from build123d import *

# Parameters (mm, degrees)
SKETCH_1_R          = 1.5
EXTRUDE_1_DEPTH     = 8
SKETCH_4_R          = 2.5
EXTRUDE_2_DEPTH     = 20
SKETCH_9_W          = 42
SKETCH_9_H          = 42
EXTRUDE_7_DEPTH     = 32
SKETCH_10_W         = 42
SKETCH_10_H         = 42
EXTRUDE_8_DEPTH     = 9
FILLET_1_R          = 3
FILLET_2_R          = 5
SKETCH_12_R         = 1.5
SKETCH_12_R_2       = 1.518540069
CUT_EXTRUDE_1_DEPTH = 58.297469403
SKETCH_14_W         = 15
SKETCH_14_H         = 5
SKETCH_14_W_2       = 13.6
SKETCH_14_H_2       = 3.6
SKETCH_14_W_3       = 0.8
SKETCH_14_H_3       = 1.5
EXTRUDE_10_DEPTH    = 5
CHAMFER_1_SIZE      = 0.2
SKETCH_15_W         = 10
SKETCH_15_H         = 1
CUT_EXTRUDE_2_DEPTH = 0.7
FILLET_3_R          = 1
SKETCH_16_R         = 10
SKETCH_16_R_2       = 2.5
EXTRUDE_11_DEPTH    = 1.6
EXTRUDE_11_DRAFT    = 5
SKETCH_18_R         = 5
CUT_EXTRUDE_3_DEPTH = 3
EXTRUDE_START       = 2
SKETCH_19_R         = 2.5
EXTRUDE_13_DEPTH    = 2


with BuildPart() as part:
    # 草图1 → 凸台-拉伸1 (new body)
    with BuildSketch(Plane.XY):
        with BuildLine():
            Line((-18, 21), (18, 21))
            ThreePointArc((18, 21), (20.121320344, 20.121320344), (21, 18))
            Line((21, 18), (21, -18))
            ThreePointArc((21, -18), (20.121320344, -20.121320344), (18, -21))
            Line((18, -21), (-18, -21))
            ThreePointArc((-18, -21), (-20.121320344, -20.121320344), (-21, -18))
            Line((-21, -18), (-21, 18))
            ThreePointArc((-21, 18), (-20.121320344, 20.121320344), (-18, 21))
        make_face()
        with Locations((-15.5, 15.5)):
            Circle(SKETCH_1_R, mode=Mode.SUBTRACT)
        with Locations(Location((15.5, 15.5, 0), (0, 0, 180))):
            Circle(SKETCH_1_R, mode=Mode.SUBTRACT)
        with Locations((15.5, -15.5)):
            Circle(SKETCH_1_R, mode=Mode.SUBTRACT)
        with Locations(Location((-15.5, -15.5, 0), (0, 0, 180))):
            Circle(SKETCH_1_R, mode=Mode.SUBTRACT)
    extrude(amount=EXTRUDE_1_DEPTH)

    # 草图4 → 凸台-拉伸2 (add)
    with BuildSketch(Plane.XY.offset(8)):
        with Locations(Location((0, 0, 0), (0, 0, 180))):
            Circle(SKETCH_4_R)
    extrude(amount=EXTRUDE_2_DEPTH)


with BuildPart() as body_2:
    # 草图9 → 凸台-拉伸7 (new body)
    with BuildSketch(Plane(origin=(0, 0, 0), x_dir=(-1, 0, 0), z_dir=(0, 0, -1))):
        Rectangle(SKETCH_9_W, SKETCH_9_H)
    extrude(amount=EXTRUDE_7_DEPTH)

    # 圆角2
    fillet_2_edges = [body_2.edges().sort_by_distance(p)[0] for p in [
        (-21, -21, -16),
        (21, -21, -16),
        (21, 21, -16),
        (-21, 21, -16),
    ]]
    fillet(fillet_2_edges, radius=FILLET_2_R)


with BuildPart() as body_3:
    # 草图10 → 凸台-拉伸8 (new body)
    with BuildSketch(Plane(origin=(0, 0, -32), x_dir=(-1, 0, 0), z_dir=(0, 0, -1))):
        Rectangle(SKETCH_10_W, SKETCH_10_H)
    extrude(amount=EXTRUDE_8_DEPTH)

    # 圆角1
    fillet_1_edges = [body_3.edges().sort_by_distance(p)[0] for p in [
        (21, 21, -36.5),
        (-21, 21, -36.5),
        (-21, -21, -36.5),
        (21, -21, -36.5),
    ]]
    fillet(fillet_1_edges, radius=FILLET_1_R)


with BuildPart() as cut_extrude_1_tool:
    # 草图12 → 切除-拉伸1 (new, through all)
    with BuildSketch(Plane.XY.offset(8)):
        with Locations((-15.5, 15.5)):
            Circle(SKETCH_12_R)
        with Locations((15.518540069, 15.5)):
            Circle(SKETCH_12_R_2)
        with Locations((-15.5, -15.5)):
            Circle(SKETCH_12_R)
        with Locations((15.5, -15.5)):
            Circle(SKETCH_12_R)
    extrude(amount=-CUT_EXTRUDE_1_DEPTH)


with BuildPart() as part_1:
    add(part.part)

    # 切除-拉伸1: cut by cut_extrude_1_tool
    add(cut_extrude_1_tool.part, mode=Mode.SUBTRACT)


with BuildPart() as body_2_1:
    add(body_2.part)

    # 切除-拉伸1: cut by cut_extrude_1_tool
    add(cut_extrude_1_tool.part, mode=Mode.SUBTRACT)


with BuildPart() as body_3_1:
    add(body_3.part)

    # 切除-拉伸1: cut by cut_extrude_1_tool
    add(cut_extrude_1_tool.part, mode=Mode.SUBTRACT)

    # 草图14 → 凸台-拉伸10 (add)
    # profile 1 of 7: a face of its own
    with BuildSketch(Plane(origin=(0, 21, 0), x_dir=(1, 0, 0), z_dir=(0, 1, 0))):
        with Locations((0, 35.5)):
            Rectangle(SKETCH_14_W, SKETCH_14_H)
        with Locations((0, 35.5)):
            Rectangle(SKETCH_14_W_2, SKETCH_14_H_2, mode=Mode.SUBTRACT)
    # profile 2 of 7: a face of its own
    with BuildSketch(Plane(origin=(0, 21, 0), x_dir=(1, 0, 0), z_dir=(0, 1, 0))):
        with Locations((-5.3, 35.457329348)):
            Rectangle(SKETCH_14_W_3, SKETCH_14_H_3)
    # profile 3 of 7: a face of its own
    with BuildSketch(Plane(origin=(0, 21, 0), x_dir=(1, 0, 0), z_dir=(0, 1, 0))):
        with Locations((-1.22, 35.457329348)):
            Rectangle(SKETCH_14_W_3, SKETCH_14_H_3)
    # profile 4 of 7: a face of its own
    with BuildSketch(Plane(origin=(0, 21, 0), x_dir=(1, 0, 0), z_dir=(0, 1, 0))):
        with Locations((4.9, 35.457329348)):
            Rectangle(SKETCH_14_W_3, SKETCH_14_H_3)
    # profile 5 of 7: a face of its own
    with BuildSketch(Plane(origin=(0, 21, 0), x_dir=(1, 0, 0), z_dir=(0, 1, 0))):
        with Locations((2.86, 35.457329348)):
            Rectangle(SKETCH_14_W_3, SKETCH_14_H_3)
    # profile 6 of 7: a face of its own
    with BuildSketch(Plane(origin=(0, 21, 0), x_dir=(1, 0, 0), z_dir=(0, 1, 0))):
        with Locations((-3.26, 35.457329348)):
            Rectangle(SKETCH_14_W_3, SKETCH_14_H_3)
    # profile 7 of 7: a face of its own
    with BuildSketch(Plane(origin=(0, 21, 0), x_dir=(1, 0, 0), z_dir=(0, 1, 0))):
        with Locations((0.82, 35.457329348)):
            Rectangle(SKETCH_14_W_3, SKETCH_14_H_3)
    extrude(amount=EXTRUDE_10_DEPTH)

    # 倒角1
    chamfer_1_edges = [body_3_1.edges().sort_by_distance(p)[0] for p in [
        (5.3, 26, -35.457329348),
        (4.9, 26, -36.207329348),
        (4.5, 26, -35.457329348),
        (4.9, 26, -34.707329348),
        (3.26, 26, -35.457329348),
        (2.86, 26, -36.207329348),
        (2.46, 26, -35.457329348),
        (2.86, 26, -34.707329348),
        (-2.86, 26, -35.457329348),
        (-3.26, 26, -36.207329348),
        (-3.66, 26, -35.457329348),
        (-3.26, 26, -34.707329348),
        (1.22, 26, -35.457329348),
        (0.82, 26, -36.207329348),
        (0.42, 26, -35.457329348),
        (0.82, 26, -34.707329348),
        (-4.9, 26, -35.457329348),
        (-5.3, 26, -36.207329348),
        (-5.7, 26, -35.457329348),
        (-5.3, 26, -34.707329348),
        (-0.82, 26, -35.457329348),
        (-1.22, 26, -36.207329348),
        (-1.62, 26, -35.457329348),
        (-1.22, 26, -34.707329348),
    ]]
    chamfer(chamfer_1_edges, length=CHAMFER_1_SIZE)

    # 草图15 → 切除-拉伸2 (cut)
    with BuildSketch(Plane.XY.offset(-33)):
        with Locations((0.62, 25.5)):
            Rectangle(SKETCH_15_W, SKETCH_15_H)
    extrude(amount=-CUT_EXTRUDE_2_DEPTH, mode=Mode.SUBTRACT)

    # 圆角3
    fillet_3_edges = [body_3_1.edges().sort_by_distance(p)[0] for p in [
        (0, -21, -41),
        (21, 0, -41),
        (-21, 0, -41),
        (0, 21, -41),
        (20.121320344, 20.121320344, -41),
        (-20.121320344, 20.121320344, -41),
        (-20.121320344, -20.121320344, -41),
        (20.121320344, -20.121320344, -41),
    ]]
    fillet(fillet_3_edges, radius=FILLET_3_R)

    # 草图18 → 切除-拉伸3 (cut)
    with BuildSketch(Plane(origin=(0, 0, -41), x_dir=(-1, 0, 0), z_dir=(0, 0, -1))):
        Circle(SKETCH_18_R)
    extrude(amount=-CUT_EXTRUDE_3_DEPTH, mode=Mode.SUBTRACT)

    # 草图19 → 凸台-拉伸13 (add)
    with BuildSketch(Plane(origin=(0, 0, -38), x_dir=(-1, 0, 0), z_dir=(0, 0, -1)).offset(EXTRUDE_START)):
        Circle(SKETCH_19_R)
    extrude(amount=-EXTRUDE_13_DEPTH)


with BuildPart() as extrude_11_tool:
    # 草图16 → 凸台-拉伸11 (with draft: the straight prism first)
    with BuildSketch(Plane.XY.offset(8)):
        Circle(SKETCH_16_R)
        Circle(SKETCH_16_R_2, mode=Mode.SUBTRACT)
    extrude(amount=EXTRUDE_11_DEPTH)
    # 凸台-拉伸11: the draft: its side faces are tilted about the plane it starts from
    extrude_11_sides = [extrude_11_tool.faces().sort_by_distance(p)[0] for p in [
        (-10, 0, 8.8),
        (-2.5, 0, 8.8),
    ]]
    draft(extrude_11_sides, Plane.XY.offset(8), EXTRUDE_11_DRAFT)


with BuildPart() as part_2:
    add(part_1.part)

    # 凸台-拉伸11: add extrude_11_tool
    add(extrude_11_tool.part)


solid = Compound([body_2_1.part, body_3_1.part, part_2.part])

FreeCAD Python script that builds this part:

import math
import FreeCAD as App
import Part
import Sketcher

V = App.Vector
Q = App.Units.Quantity


def edges_at(feature, points):
    """Names of the edges that pass closest to the given points."""
    edges = feature.Shape.Edges
    near = lambda p: min(range(len(edges)), key=lambda i: edges[i].distToShape(Part.Vertex(*p))[0])
    return sorted({f"Edge{near(p) + 1}" for p in points})


def faces_at(feature, points):
    """Names of the faces that lie closest to the given points."""
    faces = feature.Shape.Faces
    near = lambda p: min(range(len(faces)), key=lambda i: faces[i].distToShape(Part.Vertex(*p))[0])
    return sorted({f"Face{near(p) + 1}" for p in points})


def add_polygon(sketch, points):
    """Adds a closed chain of lines whose ends are joined by coincident constraints."""
    first, n = sketch.GeometryCount, len(points)
    for a, b in zip(points, points[1:] + points[:1]):
        sketch.addGeometry(Part.LineSegment(App.Vector(*a, 0), App.Vector(*b, 0)), False)
    for i in range(n):
        sketch.addConstraint(Sketcher.Constraint("Coincident", first + i, 2, first + (i + 1) % n, 1))

doc = App.newDocument("Part")
body = doc.addObject("PartDesign::Body", "Body")

# Sketch on XY plane
sketch1 = body.newObject("Sketcher::SketchObject", "Sketch")
sketch1.AttachmentSupport = (doc.getObject("XY_Plane"), [""])
sketch1.MapMode = "FlatFace"
sketch1.addGeometry([
    Part.LineSegment(V(18, 21, 0), V(-18, 21, 0)),  # 0
    Part.ArcOfCircle(Part.Circle(V(-18, 18, 0), V(0, 0, 1), 3), math.radians(90), math.radians(180)),  # 1
    Part.LineSegment(V(-21, 18, 0), V(-21, -18, 0)),  # 2
    Part.ArcOfCircle(Part.Circle(V(-18, -18, 0), V(0, 0, 1), 3), math.radians(180), math.radians(270)),  # 3
    Part.LineSegment(V(-18, -21, 0), V(18, -21, 0)),  # 4
    Part.ArcOfCircle(Part.Circle(V(18, -18, 0), V(0, 0, 1), 3), math.radians(-90), math.radians(0)),  # 5
    Part.LineSegment(V(21, -18, 0), V(21, 18, 0)),  # 6
    Part.ArcOfCircle(Part.Circle(V(18, 18, 0), V(0, 0, 1), 3), math.radians(0), math.radians(90)),  # 7
    Part.Circle(V(15.5, -15.5, 0), V(0, 0, 1), 1.5),  # 8
    Part.Circle(V(-15.5, -15.5, 0), V(0, 0, 1), 1.5),  # 9
    Part.Circle(V(15.5, 15.5, 0), V(0, 0, 1), 1.5),  # 10
    Part.Circle(V(-15.5, 15.5, 0), V(0, 0, 1), 1.5),  # 11
], False)
sketch1.addConstraint([
    Sketcher.Constraint("Tangent", 0, 2, 1, 1),
    Sketcher.Constraint("Tangent", 1, 2, 2, 1),
    Sketcher.Constraint("Tangent", 2, 2, 3, 1),
    Sketcher.Constraint("Tangent", 3, 2, 4, 1),
    Sketcher.Constraint("Tangent", 4, 2, 5, 1),
    Sketcher.Constraint("Tangent", 5, 2, 6, 1),
    Sketcher.Constraint("Tangent", 6, 2, 7, 1),
    Sketcher.Constraint("Tangent", 7, 2, 0, 1),
    Sketcher.Constraint("Horizontal", 0),
    Sketcher.Constraint("Vertical", 2),
    Sketcher.Constraint("Horizontal", 4),
    Sketcher.Constraint("Vertical", 6),
    Sketcher.Constraint("Equal", 1, 3),
    Sketcher.Constraint("Equal", 3, 5),
    Sketcher.Constraint("Equal", 5, 7),
    Sketcher.Constraint("Equal", 8, 9),
    Sketcher.Constraint("Equal", 9, 10),
    Sketcher.Constraint("Equal", 10, 11),
    Sketcher.Constraint("Symmetric", 1, 3, 5, 3, -1, 1),
    Sketcher.Constraint("Symmetric", 9, 3, 10, 3, -1, 1),
    Sketcher.Constraint("Symmetric", 8, 3, 11, 3, -1, 1),
    Sketcher.Constraint("Symmetric", 8, 3, 9, 3, -2),
    Sketcher.Constraint("Equal", 4, 2),
    Sketcher.Constraint("Diameter", 8, Q("3 mm")),
    Sketcher.Constraint("Radius", 1, Q("3 mm")),
    Sketcher.Constraint("DistanceX", 0, 2, 0, 1, Q("36 mm")),
    Sketcher.Constraint("DistanceX", 9, 3, 8, 3, Q("31 mm")),
    Sketcher.Constraint("DistanceY", 8, 3, 10, 3, Q("31 mm")),
])
pad1 = body.newObject("PartDesign::Pad", "Pad")
pad1.Profile = sketch1
pad1.Length = 8

# Sketch on XY plane
sketch2 = body.newObject("Sketcher::SketchObject", "Sketch001")
sketch2.AttachmentSupport = (doc.getObject("XY_Plane"), [""])
sketch2.MapMode = "FlatFace"
sketch2.AttachmentOffset = App.Placement(V(0, 0, 8), App.Rotation())
sketch2.addGeometry(Part.Circle(V(0, 0, 0), V(0, 0, 1), 2.5), False)
sketch2.addConstraint([
    Sketcher.Constraint("Coincident", 0, 3, -1, 1),
    Sketcher.Constraint("Diameter", 0, Q("5 mm")),
])
pad2 = body.newObject("PartDesign::Pad", "Pad001")
pad2.Profile = sketch2
pad2.Length = 20
body2 = doc.addObject("PartDesign::Body", "Body001")

# Sketch on XY plane
sketch3 = body2.newObject("Sketcher::SketchObject", "Sketch002")
sketch3.AttachmentSupport = (doc.getObject("XY_Plane001"), [""])
sketch3.MapMode = "FlatFace"
add_polygon(sketch3, [(21, 21), (21, -21), (-21, -21), (-21, 21)])  # lines 0-3
sketch3.addConstraint([
    Sketcher.Constraint("Vertical", 0),
    Sketcher.Constraint("Horizontal", 1),
    Sketcher.Constraint("Vertical", 2),
    Sketcher.Constraint("Horizontal", 3),
    Sketcher.Constraint("Symmetric", 0, 2, 2, 2, -1, 1),
    Sketcher.Constraint("Equal", 3, 0),
    Sketcher.Constraint("DistanceX", 1, 2, 1, 1, Q("42 mm")),
])
pad3 = body2.newObject("PartDesign::Pad", "Pad002")
pad3.Profile = sketch3
pad3.Length = 32
pad3.Reversed = True
doc.recompute()

fillet = body2.newObject("PartDesign::Fillet", "Fillet")
fillet.Base = (pad3, edges_at(pad3, [
    (-21, -21, -16),
    (21, -21, -16),
    (21, 21, -16),
    (-21, 21, -16),
]))
fillet.Radius = 5
body3 = doc.addObject("PartDesign::Body", "Body002")

# Sketch on XY plane
sketch4 = body3.newObject("Sketcher::SketchObject", "Sketch003")
sketch4.AttachmentSupport = (doc.getObject("XY_Plane002"), [""])
sketch4.MapMode = "FlatFace"
sketch4.AttachmentOffset = App.Placement(V(0, 0, -32), App.Rotation())
add_polygon(sketch4, [(21, 21), (21, -21), (-21, -21), (-21, 21)])  # lines 0-3
sketch4.addConstraint([
    Sketcher.Constraint("Vertical", 0),
    Sketcher.Constraint("Horizontal", 1),
    Sketcher.Constraint("Vertical", 2),
    Sketcher.Constraint("Horizontal", 3),
    Sketcher.Constraint("Symmetric", 0, 2, 2, 2, -1, 1),
    Sketcher.Constraint("Equal", 3, 0),
    Sketcher.Constraint("DistanceX", 1, 2, 1, 1, Q("42 mm")),
])
pad4 = body3.newObject("PartDesign::Pad", "Pad003")
pad4.Profile = sketch4
pad4.Length = 9
pad4.Reversed = True
doc.recompute()

fillet2 = body3.newObject("PartDesign::Fillet", "Fillet001")
fillet2.Base = (pad4, edges_at(pad4, [
    (21, 21, -36.5),
    (-21, 21, -36.5),
    (-21, -21, -36.5),
    (21, -21, -36.5),
]))
fillet2.Radius = 3
body4 = doc.addObject("PartDesign::Body", "Body003")
body4.AllowCompound = True

# Sketch on XY plane
sketch5 = body4.newObject("Sketcher::SketchObject", "Sketch004")
sketch5.AttachmentSupport = (doc.getObject("XY_Plane003"), [""])
sketch5.MapMode = "FlatFace"
sketch5.AttachmentOffset = App.Placement(V(0, 0, 8), App.Rotation())
sketch5.addGeometry([
    Part.Circle(V(-15.5, 15.5, 0), V(0, 0, 1), 1.5),
    Part.Circle(V(15.5, 15.5, 0), V(0, 0, 1), 1.5),
    Part.Circle(V(-15.5, -15.5, 0), V(0, 0, 1), 1.5),
    Part.Circle(V(15.5, -15.5, 0), V(0, 0, 1), 1.5),
], False)
sketch5.addConstraint([
    Sketcher.Constraint("Equal", 0, 2),
    Sketcher.Constraint("Equal", 2, 3),
    Sketcher.Constraint("Symmetric", 0, 3, 3, 3, -1, 1),
    Sketcher.Constraint("Symmetric", 2, 3, 3, 3, -2),
    Sketcher.Constraint("Horizontal", 0, 3, 1, 3),
    Sketcher.Constraint("Diameter", 0, Q("3 mm")),
    Sketcher.Constraint("DistanceY", 2, 3, 0, 3, Q("31 mm")),
    Sketcher.Constraint("DistanceX", 2, 3, 3, 3, Q("31 mm")),
    Sketcher.Constraint("Diameter", 1, Q("3.03708 mm")),
    Sketcher.Constraint("DistanceX", -1, 1, 1, 3, Q("15.51854 mm")),
])
pad5 = body4.newObject("PartDesign::Pad", "Pad004")
pad5.Profile = sketch5
pad5.Length = 58.297469
pad5.Reversed = True
doc.recompute()

body5 = doc.addObject("PartDesign::Body", "Body004")
body5.BaseFeature = body4
boolean = body.newObject("PartDesign::Boolean", "Boolean")
boolean.Type = "Cut"
boolean.addObjects([body5])
doc.recompute()

body6 = doc.addObject("PartDesign::Body", "Body005")
body6.BaseFeature = body4
boolean2 = body2.newObject("PartDesign::Boolean", "Boolean001")
boolean2.Type = "Cut"
boolean2.addObjects([body6])
doc.recompute()

boolean3 = body3.newObject("PartDesign::Boolean", "Boolean002")
boolean3.Type = "Cut"
boolean3.addObjects([body4])

# Sketch on XZ plane
sketch6 = body3.newObject("Sketcher::SketchObject", "Sketch005")
sketch6.AttachmentSupport = (doc.getObject("XZ_Plane002"), [""])
sketch6.MapMode = "FlatFace"
sketch6.AttachmentOffset = App.Placement(V(0, 0, -21), App.Rotation())
add_polygon(sketch6, [(-7.5, -38), (-7.5, -33), (7.5, -33), (7.5, -38)])  # lines 0-3
add_polygon(sketch6, [(6.8, -33.7), (-6.8, -33.7), (-6.8, -37.3), (6.8, -37.3)])  # lines 4-7
add_polygon(sketch6, [(-5.7, -36.2), (-5.7, -34.7), (-4.9, -34.7), (-4.9, -36.2)])  # lines 8-11
add_polygon(sketch6, [(-1.6, -36.2), (-1.6, -34.7), (-0.8, -34.7), (-0.8, -36.2)])  # lines 12-15
add_polygon(sketch6, [(4.5, -36.2), (4.5, -34.7), (5.3, -34.7), (5.3, -36.2)])  # lines 16-19
add_polygon(sketch6, [(2.5, -36.2), (2.5, -34.7), (3.3, -34.7), (3.3, -36.2)])  # lines 20-23
add_polygon(sketch6, [(-3.7, -36.2), (-3.7, -34.7), (-2.9, -34.7), (-2.9, -36.2)])  # lines 24-27
add_polygon(sketch6, [(0.4, -36.2), (0.4, -34.7), (1.2, -34.7), (1.2, -36.2)])  # lines 28-31
sketch6.addConstraint([
    Sketcher.Constraint("Vertical", 0),
    Sketcher.Constraint("Horizontal", 1),
    Sketcher.Constraint("Vertical", 2),
    Sketcher.Constraint("Horizontal", 3),
    Sketcher.Constraint("Horizontal", 4),
    Sketcher.Constraint("Vertical", 5),
    Sketcher.Constraint("Horizontal", 6),
    Sketcher.Constraint("Vertical", 7),
    Sketcher.Constraint("Vertical", 8),
    Sketcher.Constraint("Horizontal", 9),
    Sketcher.Constraint("Vertical", 10),
    Sketcher.Constraint("Horizontal", 11),
    Sketcher.Constraint("Vertical", 12),
    Sketcher.Constraint("Horizontal", 13),
    Sketcher.Constraint("Vertical", 14),
    Sketcher.Constraint("Horizontal", 15),
    Sketcher.Constraint("Vertical", 16),
    Sketcher.Constraint("Horizontal", 17),
    Sketcher.Constraint("Vertical", 18),
    Sketcher.Constraint("Horizontal", 19),
    Sketcher.Constraint("Vertical", 20),
    Sketcher.Constraint("Horizontal", 21),
    Sketcher.Constraint("Vertical", 22),
    Sketcher.Constraint("Horizontal", 23),
    Sketcher.Constraint("Vertical", 24),
    Sketcher.Constraint("Horizontal", 25),
    Sketcher.Constraint("Vertical", 26),
    Sketcher.Constraint("Horizontal", 27),
    Sketcher.Constraint("Vertical", 28),
    Sketcher.Constraint("Horizontal", 29),
    Sketcher.Constraint("Vertical", 30),
    Sketcher.Constraint("Horizontal", 31),
    Sketcher.Constraint("Horizontal", 9, 2, 12, 2),
    Sketcher.Constraint("Horizontal", 11, 2, 14, 2),
    Sketcher.Constraint("Horizontal", 13, 2, 16, 2),
    Sketcher.Constraint("Horizontal", 15, 2, 18, 2),
    Sketcher.Constraint("Horizontal", 17, 2, 20, 2),
    Sketcher.Constraint("Horizontal", 19, 2, 22, 2),
    Sketcher.Constraint("Horizontal", 21, 2, 24, 2),
    Sketcher.Constraint("Horizontal", 23, 2, 26, 2),
    Sketcher.Constraint("Horizontal", 25, 2, 28, 2),
    Sketcher.Constraint("Horizontal", 27, 2, 30, 2),
    Sketcher.Constraint("Equal", 11, 13),
    Sketcher.Constraint("Equal", 15, 17),
    Sketcher.Constraint("Equal", 19, 21),
    Sketcher.Constraint("Equal", 23, 25),
    Sketcher.Constraint("Equal", 27, 29),
    Sketcher.Constraint("DistanceX", 1, 1, 1, 2, Q("15 mm")),
    Sketcher.Constraint("DistanceY", 0, 1, 0, 2, Q("5 mm")),
    Sketcher.Constraint("DistanceX", 4, 2, 4, 1, Q("13.6 mm")),
    Sketcher.Constraint("DistanceX", 9, 1, 9, 2, Q("0.8 mm")),
    Sketcher.Constraint("DistanceY", 5, 2, 5, 1, Q("3.6 mm")),
    Sketcher.Constraint("DistanceY", 8, 1, 8, 2, Q("1.5 mm")),
    Sketcher.Constraint("DistanceY", 0, 2, -1, 1, Q("33 mm")),
    Sketcher.Constraint("DistanceX", 16, 2, 1, 2, Q("3 mm")),
    Sketcher.Constraint("DistanceX", 0, 2, -1, 1, Q("7.5 mm")),
    Sketcher.Constraint("DistanceX", 4, 2, -1, 1, Q("6.8 mm")),
    Sketcher.Constraint("DistanceY", 4, 2, -1, 1, Q("33.7 mm")),
    Sketcher.Constraint("DistanceX", 8, 2, -1, 1, Q("5.7 mm")),
    Sketcher.Constraint("DistanceX", 12, 2, -1, 1, Q("1.62 mm")),
    Sketcher.Constraint("DistanceX", -1, 1, 20, 2, Q("2.46 mm")),
    Sketcher.Constraint("DistanceX", 24, 2, -1, 1, Q("3.66 mm")),
    Sketcher.Constraint("DistanceX", -1, 1, 28, 2, Q("0.42 mm")),
    Sketcher.Constraint("DistanceY", 8, 2, -1, 1, Q("34.707329 mm")),
])
pad6 = body3.newObject("PartDesign::Pad", "Pad005")
pad6.Profile = sketch6
pad6.Length = 5
pad6.Reversed = True
doc.recompute()

chamfer = body3.newObject("PartDesign::Chamfer", "Chamfer")
chamfer.Base = (pad6, edges_at(pad6, [
    (5.3, 26, -35.457),
    (4.9, 26, -36.207),
    (4.5, 26, -35.457),
    (4.9, 26, -34.707),
    (3.26, 26, -35.457),
    (2.86, 26, -36.207),
    (2.46, 26, -35.457),
    (2.86, 26, -34.707),
    (-2.86, 26, -35.457),
    (-3.26, 26, -36.207),
    (-3.66, 26, -35.457),
    (-3.26, 26, -34.707),
    (1.22, 26, -35.457),
    (0.82, 26, -36.207),
    (0.42, 26, -35.457),
    (0.82, 26, -34.707),
    (-4.9, 26, -35.457),
    (-5.3, 26, -36.207),
    (-5.7, 26, -35.457),
    (-5.3, 26, -34.707),
    (-0.82, 26, -35.457),
    (-1.22, 26, -36.207),
    (-1.62, 26, -35.457),
    (-1.22, 26, -34.707),
]))
chamfer.Size = 0.2

# Sketch on XY plane
sketch7 = body3.newObject("Sketcher::SketchObject", "Sketch006")
sketch7.AttachmentSupport = (doc.getObject("XY_Plane002"), [""])
sketch7.MapMode = "FlatFace"
sketch7.AttachmentOffset = App.Placement(V(0, 0, -33), App.Rotation())
add_polygon(sketch7, [(-4.4, 26), (-4.4, 25), (5.6, 25), (5.6, 26)])  # lines 0-3
sketch7.addConstraint([
    Sketcher.Constraint("Vertical", 0),
    Sketcher.Constraint("Horizontal", 1),
    Sketcher.Constraint("Vertical", 2),
    Sketcher.Constraint("Horizontal", 3),
    Sketcher.Constraint("DistanceX", 1, 1, 1, 2, Q("10 mm")),
    Sketcher.Constraint("DistanceY", 0, 2, 0, 1, Q("1 mm")),
    Sketcher.Constraint("DistanceY", -1, 1, 0, 2, Q("25 mm")),
    Sketcher.Constraint("DistanceX", 0, 2, -1, 1, Q("4.38 mm")),
])
pocket1 = body3.newObject("PartDesign::Pocket", "Pocket")
pocket1.Profile = sketch7
pocket1.Length = 0.7
doc.recompute()

fillet3 = body3.newObject("PartDesign::Fillet", "Fillet002")
fillet3.Base = (pocket1, edges_at(pocket1, [
    (0, -21, -41),
    (21, 0, -41),
    (-21, 0, -41),
    (0, 21, -41),
    (20.121, 20.121, -41),
    (-20.121, 20.121, -41),
    (-20.121, -20.121, -41),
    (20.121, -20.121, -41),
]))
fillet3.Radius = 1

# Sketch on XY plane
sketch8 = body3.newObject("Sketcher::SketchObject", "Sketch007")
sketch8.AttachmentSupport = (doc.getObject("XY_Plane002"), [""])
sketch8.MapMode = "FlatFace"
sketch8.AttachmentOffset = App.Placement(V(0, 0, -41), App.Rotation())
sketch8.addGeometry(Part.Circle(V(0, 0, 0), V(0, 0, 1), 5), False)
sketch8.addConstraint([
    Sketcher.Constraint("Coincident", 0, 3, -1, 1),
    Sketcher.Constraint("Diameter", 0, Q("10 mm")),
])
pocket2 = body3.newObject("PartDesign::Pocket", "Pocket001")
pocket2.Profile = sketch8
pocket2.Length = 3
pocket2.Reversed = True

# Sketch on XY plane
sketch9 = body3.newObject("Sketcher::SketchObject", "Sketch008")
sketch9.AttachmentSupport = (doc.getObject("XY_Plane002"), [""])
sketch9.MapMode = "FlatFace"
sketch9.AttachmentOffset = App.Placement(V(0, 0, -40), App.Rotation())
sketch9.addGeometry(Part.Circle(V(0, 0, 0), V(0, 0, 1), 2.5), False)
sketch9.addConstraint([
    Sketcher.Constraint("Coincident", 0, 3, -1, 1),
    Sketcher.Constraint("Diameter", 0, Q("5 mm")),
])
pad7 = body3.newObject("PartDesign::Pad", "Pad006")
pad7.Profile = sketch9
pad7.Length = 2
body7 = doc.addObject("PartDesign::Body", "Body006")

# Sketch on XY plane
sketch10 = body7.newObject("Sketcher::SketchObject", "Sketch009")
sketch10.AttachmentSupport = (doc.getObject("XY_Plane006"), [""])
sketch10.MapMode = "FlatFace"
sketch10.AttachmentOffset = App.Placement(V(0, 0, 8), App.Rotation())
sketch10.addGeometry([
    Part.Circle(V(0, 0, 0), V(0, 0, 1), 10),
    Part.Circle(V(0, 0, 0), V(0, 0, 1), 2.5),
], False)
sketch10.addConstraint([
    Sketcher.Constraint("Coincident", 0, 3, -1, 1),
    Sketcher.Constraint("Coincident", 1, 3, -1, 1),
    Sketcher.Constraint("Diameter", 0, Q("20 mm")),
    Sketcher.Constraint("Diameter", 1, Q("5 mm")),
])
pad8 = body7.newObject("PartDesign::Pad", "Pad007")
pad8.Profile = sketch10
pad8.Length = 1.6
doc.recompute()

datumplane = body7.newObject("PartDesign::Plane", "DatumPlane")
datumplane.AttachmentSupport = (doc.getObject("XY_Plane006"), [""])
datumplane.MapMode = "FlatFace"
datumplane.AttachmentOffset = App.Placement(V(0, 0, 8), App.Rotation())
draft = body7.newObject("PartDesign::Draft", "Draft")
draft.Base = (pad8, faces_at(pad8, [(-10, 0, 8.8), (-2.5, 0, 8.8)]))
draft.NeutralPlane = (datumplane, [""])
draft.Angle = 5
draft.Reversed = False
doc.recompute()

boolean4 = body.newObject("PartDesign::Boolean", "Boolean003")
boolean4.Type = "Fuse"
boolean4.addObjects([body7])

doc.recompute()
